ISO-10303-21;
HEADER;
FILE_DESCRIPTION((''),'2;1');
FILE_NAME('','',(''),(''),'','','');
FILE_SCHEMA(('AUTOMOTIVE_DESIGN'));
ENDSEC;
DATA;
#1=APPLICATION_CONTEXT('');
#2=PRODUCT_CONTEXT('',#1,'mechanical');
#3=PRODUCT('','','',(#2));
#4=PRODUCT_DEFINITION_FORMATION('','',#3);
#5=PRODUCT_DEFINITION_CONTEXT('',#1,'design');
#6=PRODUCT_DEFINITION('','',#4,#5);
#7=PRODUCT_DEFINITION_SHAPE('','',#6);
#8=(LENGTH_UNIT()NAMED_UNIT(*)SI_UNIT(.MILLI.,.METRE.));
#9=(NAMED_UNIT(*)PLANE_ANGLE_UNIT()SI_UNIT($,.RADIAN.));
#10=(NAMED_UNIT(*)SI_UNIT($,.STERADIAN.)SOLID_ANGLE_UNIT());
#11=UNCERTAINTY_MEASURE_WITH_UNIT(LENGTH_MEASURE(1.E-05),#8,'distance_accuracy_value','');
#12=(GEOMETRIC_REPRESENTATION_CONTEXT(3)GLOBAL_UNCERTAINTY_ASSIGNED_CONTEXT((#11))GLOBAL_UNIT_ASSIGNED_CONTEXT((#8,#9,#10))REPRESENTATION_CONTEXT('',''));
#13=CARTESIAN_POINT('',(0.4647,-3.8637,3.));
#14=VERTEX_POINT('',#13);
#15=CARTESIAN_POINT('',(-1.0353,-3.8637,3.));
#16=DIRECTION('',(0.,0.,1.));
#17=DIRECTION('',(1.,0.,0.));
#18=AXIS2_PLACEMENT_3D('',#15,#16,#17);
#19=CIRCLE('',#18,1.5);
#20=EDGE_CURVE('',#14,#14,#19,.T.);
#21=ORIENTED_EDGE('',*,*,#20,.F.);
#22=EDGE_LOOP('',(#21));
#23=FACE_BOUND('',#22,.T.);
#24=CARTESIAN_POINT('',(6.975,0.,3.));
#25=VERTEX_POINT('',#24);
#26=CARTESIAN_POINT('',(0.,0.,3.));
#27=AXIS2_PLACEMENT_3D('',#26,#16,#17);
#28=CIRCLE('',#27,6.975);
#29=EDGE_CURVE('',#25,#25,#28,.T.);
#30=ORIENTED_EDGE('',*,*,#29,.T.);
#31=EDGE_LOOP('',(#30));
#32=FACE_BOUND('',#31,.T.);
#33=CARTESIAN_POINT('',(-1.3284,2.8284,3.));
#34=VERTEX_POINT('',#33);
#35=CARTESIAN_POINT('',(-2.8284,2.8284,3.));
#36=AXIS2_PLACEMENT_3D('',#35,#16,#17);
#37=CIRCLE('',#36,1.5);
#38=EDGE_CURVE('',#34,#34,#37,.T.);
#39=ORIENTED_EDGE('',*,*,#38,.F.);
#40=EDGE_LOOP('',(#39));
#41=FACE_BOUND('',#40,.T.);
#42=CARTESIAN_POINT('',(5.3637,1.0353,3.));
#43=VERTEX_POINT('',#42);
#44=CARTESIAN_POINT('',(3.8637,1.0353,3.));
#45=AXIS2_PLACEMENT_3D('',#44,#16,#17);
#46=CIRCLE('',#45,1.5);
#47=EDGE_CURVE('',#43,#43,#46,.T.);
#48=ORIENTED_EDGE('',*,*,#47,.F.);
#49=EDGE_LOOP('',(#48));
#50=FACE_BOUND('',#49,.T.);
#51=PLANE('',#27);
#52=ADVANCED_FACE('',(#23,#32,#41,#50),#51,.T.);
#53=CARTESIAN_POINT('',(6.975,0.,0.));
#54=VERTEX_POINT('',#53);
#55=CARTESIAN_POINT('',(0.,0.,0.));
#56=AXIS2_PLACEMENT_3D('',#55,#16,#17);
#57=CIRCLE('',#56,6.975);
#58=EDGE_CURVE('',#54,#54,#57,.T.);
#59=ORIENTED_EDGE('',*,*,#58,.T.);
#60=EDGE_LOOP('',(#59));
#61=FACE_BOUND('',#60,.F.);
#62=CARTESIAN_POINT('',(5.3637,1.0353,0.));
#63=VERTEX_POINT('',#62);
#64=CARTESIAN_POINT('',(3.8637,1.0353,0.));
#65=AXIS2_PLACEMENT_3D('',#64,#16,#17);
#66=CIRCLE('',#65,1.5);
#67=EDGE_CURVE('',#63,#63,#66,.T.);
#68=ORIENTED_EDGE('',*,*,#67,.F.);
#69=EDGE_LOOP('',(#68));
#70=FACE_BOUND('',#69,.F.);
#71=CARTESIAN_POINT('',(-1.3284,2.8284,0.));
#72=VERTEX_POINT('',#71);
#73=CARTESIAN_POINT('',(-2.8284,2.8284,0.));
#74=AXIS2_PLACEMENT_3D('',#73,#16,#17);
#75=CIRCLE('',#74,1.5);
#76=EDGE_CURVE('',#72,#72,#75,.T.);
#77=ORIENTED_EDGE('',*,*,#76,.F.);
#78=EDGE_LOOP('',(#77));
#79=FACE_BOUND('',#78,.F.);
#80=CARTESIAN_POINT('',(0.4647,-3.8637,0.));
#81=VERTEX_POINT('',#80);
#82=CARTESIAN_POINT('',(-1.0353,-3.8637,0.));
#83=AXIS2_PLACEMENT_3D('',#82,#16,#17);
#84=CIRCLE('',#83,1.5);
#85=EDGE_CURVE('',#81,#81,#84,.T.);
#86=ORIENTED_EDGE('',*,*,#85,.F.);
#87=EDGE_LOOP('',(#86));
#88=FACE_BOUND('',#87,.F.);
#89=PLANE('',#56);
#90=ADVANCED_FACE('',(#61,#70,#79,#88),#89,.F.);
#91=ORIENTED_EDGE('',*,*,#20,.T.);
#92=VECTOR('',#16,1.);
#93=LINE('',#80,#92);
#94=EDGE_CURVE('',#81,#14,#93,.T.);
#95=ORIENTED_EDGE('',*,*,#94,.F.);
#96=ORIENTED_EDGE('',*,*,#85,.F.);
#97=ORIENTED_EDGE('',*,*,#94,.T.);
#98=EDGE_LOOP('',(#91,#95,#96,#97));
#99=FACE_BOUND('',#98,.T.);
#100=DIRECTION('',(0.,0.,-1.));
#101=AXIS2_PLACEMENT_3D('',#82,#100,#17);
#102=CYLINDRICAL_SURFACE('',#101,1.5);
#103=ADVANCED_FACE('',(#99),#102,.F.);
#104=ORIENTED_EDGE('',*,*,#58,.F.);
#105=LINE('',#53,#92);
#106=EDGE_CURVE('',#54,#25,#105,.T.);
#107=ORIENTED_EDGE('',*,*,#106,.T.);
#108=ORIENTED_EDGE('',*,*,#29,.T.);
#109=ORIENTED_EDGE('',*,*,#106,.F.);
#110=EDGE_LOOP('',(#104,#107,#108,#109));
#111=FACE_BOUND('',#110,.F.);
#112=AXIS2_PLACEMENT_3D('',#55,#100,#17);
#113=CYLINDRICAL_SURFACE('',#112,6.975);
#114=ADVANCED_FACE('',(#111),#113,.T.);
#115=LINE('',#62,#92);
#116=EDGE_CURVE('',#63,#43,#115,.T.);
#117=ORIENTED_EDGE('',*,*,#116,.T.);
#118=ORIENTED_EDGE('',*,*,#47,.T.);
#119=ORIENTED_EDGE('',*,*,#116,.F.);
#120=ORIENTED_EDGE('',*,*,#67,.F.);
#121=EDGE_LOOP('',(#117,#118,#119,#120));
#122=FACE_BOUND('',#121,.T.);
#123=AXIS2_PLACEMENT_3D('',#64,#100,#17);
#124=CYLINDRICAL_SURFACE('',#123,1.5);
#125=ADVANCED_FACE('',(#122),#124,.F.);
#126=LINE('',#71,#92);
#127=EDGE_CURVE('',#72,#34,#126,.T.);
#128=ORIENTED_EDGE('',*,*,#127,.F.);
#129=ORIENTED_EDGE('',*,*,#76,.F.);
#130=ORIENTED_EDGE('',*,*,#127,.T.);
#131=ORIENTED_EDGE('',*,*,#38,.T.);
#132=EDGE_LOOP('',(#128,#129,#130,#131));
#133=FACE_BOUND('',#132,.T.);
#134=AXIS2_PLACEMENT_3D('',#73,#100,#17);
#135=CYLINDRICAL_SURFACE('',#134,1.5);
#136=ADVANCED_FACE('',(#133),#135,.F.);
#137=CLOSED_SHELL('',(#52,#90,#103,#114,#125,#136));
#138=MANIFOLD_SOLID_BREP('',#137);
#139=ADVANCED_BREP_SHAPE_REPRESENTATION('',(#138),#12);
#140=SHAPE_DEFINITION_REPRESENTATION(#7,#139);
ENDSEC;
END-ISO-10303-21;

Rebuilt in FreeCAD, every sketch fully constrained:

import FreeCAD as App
import Part
import Sketcher
from FreeCAD import Vector

doc = App.newDocument("Part")
body = doc.addObject("PartDesign::Body", "Body")

# Sketch on XY plane
sketch1 = doc.addObject("Sketcher::SketchObject", "Sketch")
body.addObject(sketch1)
sketch1.AttachmentSupport = (doc.XY_Plane, [""])
sketch1.MapMode = "FlatFace"
sketch1.addGeometry(Part.Circle(Vector(0, 0, 0), Vector(0, 0, 1), 7), False)
sketch1.addGeometry(Part.Circle(Vector(-1, -3.9, 0), Vector(0, 0, 1), 1.5), False)
sketch1.addGeometry(Part.Circle(Vector(-2.8, 2.8, 0), Vector(0, 0, 1), 1.5), False)
sketch1.addGeometry(Part.Circle(Vector(3.9, 1, 0), Vector(0, 0, 1), 1.5), False)
sketch1.addConstraint(Sketcher.Constraint("Coincident", 0, 3, -1, 1))
sketch1.addConstraint(Sketcher.Constraint("Equal", 1, 2))
sketch1.addConstraint(Sketcher.Constraint("Equal", 2, 3))
sketch1.addConstraint(Sketcher.Constraint("Diameter", 1, 3.0))
sketch1.addConstraint(Sketcher.Constraint("Diameter", 0, 13.95))
sketch1.addConstraint(Sketcher.Constraint("DistanceX", 2, 3, 1, 3, 1.793))
sketch1.addConstraint(Sketcher.Constraint("DistanceY", 1, 3, 2, 3, 6.692))
sketch1.addConstraint(Sketcher.Constraint("DistanceX", 2, 3, 3, 3, 6.692))
sketch1.addConstraint(Sketcher.Constraint("DistanceY", 3, 3, 2, 3, 1.793))
sketch1.addConstraint(Sketcher.Constraint("DistanceX", 1, 3, -1, 1, 1.0353))
sketch1.addConstraint(Sketcher.Constraint("DistanceY", 1, 3, -1, 1, 3.8637))
pad1 = doc.addObject("PartDesign::Pad", "Pad")
body.addObject(pad1)
pad1.Profile = sketch1
pad1.Length = 3

doc.recompute()
